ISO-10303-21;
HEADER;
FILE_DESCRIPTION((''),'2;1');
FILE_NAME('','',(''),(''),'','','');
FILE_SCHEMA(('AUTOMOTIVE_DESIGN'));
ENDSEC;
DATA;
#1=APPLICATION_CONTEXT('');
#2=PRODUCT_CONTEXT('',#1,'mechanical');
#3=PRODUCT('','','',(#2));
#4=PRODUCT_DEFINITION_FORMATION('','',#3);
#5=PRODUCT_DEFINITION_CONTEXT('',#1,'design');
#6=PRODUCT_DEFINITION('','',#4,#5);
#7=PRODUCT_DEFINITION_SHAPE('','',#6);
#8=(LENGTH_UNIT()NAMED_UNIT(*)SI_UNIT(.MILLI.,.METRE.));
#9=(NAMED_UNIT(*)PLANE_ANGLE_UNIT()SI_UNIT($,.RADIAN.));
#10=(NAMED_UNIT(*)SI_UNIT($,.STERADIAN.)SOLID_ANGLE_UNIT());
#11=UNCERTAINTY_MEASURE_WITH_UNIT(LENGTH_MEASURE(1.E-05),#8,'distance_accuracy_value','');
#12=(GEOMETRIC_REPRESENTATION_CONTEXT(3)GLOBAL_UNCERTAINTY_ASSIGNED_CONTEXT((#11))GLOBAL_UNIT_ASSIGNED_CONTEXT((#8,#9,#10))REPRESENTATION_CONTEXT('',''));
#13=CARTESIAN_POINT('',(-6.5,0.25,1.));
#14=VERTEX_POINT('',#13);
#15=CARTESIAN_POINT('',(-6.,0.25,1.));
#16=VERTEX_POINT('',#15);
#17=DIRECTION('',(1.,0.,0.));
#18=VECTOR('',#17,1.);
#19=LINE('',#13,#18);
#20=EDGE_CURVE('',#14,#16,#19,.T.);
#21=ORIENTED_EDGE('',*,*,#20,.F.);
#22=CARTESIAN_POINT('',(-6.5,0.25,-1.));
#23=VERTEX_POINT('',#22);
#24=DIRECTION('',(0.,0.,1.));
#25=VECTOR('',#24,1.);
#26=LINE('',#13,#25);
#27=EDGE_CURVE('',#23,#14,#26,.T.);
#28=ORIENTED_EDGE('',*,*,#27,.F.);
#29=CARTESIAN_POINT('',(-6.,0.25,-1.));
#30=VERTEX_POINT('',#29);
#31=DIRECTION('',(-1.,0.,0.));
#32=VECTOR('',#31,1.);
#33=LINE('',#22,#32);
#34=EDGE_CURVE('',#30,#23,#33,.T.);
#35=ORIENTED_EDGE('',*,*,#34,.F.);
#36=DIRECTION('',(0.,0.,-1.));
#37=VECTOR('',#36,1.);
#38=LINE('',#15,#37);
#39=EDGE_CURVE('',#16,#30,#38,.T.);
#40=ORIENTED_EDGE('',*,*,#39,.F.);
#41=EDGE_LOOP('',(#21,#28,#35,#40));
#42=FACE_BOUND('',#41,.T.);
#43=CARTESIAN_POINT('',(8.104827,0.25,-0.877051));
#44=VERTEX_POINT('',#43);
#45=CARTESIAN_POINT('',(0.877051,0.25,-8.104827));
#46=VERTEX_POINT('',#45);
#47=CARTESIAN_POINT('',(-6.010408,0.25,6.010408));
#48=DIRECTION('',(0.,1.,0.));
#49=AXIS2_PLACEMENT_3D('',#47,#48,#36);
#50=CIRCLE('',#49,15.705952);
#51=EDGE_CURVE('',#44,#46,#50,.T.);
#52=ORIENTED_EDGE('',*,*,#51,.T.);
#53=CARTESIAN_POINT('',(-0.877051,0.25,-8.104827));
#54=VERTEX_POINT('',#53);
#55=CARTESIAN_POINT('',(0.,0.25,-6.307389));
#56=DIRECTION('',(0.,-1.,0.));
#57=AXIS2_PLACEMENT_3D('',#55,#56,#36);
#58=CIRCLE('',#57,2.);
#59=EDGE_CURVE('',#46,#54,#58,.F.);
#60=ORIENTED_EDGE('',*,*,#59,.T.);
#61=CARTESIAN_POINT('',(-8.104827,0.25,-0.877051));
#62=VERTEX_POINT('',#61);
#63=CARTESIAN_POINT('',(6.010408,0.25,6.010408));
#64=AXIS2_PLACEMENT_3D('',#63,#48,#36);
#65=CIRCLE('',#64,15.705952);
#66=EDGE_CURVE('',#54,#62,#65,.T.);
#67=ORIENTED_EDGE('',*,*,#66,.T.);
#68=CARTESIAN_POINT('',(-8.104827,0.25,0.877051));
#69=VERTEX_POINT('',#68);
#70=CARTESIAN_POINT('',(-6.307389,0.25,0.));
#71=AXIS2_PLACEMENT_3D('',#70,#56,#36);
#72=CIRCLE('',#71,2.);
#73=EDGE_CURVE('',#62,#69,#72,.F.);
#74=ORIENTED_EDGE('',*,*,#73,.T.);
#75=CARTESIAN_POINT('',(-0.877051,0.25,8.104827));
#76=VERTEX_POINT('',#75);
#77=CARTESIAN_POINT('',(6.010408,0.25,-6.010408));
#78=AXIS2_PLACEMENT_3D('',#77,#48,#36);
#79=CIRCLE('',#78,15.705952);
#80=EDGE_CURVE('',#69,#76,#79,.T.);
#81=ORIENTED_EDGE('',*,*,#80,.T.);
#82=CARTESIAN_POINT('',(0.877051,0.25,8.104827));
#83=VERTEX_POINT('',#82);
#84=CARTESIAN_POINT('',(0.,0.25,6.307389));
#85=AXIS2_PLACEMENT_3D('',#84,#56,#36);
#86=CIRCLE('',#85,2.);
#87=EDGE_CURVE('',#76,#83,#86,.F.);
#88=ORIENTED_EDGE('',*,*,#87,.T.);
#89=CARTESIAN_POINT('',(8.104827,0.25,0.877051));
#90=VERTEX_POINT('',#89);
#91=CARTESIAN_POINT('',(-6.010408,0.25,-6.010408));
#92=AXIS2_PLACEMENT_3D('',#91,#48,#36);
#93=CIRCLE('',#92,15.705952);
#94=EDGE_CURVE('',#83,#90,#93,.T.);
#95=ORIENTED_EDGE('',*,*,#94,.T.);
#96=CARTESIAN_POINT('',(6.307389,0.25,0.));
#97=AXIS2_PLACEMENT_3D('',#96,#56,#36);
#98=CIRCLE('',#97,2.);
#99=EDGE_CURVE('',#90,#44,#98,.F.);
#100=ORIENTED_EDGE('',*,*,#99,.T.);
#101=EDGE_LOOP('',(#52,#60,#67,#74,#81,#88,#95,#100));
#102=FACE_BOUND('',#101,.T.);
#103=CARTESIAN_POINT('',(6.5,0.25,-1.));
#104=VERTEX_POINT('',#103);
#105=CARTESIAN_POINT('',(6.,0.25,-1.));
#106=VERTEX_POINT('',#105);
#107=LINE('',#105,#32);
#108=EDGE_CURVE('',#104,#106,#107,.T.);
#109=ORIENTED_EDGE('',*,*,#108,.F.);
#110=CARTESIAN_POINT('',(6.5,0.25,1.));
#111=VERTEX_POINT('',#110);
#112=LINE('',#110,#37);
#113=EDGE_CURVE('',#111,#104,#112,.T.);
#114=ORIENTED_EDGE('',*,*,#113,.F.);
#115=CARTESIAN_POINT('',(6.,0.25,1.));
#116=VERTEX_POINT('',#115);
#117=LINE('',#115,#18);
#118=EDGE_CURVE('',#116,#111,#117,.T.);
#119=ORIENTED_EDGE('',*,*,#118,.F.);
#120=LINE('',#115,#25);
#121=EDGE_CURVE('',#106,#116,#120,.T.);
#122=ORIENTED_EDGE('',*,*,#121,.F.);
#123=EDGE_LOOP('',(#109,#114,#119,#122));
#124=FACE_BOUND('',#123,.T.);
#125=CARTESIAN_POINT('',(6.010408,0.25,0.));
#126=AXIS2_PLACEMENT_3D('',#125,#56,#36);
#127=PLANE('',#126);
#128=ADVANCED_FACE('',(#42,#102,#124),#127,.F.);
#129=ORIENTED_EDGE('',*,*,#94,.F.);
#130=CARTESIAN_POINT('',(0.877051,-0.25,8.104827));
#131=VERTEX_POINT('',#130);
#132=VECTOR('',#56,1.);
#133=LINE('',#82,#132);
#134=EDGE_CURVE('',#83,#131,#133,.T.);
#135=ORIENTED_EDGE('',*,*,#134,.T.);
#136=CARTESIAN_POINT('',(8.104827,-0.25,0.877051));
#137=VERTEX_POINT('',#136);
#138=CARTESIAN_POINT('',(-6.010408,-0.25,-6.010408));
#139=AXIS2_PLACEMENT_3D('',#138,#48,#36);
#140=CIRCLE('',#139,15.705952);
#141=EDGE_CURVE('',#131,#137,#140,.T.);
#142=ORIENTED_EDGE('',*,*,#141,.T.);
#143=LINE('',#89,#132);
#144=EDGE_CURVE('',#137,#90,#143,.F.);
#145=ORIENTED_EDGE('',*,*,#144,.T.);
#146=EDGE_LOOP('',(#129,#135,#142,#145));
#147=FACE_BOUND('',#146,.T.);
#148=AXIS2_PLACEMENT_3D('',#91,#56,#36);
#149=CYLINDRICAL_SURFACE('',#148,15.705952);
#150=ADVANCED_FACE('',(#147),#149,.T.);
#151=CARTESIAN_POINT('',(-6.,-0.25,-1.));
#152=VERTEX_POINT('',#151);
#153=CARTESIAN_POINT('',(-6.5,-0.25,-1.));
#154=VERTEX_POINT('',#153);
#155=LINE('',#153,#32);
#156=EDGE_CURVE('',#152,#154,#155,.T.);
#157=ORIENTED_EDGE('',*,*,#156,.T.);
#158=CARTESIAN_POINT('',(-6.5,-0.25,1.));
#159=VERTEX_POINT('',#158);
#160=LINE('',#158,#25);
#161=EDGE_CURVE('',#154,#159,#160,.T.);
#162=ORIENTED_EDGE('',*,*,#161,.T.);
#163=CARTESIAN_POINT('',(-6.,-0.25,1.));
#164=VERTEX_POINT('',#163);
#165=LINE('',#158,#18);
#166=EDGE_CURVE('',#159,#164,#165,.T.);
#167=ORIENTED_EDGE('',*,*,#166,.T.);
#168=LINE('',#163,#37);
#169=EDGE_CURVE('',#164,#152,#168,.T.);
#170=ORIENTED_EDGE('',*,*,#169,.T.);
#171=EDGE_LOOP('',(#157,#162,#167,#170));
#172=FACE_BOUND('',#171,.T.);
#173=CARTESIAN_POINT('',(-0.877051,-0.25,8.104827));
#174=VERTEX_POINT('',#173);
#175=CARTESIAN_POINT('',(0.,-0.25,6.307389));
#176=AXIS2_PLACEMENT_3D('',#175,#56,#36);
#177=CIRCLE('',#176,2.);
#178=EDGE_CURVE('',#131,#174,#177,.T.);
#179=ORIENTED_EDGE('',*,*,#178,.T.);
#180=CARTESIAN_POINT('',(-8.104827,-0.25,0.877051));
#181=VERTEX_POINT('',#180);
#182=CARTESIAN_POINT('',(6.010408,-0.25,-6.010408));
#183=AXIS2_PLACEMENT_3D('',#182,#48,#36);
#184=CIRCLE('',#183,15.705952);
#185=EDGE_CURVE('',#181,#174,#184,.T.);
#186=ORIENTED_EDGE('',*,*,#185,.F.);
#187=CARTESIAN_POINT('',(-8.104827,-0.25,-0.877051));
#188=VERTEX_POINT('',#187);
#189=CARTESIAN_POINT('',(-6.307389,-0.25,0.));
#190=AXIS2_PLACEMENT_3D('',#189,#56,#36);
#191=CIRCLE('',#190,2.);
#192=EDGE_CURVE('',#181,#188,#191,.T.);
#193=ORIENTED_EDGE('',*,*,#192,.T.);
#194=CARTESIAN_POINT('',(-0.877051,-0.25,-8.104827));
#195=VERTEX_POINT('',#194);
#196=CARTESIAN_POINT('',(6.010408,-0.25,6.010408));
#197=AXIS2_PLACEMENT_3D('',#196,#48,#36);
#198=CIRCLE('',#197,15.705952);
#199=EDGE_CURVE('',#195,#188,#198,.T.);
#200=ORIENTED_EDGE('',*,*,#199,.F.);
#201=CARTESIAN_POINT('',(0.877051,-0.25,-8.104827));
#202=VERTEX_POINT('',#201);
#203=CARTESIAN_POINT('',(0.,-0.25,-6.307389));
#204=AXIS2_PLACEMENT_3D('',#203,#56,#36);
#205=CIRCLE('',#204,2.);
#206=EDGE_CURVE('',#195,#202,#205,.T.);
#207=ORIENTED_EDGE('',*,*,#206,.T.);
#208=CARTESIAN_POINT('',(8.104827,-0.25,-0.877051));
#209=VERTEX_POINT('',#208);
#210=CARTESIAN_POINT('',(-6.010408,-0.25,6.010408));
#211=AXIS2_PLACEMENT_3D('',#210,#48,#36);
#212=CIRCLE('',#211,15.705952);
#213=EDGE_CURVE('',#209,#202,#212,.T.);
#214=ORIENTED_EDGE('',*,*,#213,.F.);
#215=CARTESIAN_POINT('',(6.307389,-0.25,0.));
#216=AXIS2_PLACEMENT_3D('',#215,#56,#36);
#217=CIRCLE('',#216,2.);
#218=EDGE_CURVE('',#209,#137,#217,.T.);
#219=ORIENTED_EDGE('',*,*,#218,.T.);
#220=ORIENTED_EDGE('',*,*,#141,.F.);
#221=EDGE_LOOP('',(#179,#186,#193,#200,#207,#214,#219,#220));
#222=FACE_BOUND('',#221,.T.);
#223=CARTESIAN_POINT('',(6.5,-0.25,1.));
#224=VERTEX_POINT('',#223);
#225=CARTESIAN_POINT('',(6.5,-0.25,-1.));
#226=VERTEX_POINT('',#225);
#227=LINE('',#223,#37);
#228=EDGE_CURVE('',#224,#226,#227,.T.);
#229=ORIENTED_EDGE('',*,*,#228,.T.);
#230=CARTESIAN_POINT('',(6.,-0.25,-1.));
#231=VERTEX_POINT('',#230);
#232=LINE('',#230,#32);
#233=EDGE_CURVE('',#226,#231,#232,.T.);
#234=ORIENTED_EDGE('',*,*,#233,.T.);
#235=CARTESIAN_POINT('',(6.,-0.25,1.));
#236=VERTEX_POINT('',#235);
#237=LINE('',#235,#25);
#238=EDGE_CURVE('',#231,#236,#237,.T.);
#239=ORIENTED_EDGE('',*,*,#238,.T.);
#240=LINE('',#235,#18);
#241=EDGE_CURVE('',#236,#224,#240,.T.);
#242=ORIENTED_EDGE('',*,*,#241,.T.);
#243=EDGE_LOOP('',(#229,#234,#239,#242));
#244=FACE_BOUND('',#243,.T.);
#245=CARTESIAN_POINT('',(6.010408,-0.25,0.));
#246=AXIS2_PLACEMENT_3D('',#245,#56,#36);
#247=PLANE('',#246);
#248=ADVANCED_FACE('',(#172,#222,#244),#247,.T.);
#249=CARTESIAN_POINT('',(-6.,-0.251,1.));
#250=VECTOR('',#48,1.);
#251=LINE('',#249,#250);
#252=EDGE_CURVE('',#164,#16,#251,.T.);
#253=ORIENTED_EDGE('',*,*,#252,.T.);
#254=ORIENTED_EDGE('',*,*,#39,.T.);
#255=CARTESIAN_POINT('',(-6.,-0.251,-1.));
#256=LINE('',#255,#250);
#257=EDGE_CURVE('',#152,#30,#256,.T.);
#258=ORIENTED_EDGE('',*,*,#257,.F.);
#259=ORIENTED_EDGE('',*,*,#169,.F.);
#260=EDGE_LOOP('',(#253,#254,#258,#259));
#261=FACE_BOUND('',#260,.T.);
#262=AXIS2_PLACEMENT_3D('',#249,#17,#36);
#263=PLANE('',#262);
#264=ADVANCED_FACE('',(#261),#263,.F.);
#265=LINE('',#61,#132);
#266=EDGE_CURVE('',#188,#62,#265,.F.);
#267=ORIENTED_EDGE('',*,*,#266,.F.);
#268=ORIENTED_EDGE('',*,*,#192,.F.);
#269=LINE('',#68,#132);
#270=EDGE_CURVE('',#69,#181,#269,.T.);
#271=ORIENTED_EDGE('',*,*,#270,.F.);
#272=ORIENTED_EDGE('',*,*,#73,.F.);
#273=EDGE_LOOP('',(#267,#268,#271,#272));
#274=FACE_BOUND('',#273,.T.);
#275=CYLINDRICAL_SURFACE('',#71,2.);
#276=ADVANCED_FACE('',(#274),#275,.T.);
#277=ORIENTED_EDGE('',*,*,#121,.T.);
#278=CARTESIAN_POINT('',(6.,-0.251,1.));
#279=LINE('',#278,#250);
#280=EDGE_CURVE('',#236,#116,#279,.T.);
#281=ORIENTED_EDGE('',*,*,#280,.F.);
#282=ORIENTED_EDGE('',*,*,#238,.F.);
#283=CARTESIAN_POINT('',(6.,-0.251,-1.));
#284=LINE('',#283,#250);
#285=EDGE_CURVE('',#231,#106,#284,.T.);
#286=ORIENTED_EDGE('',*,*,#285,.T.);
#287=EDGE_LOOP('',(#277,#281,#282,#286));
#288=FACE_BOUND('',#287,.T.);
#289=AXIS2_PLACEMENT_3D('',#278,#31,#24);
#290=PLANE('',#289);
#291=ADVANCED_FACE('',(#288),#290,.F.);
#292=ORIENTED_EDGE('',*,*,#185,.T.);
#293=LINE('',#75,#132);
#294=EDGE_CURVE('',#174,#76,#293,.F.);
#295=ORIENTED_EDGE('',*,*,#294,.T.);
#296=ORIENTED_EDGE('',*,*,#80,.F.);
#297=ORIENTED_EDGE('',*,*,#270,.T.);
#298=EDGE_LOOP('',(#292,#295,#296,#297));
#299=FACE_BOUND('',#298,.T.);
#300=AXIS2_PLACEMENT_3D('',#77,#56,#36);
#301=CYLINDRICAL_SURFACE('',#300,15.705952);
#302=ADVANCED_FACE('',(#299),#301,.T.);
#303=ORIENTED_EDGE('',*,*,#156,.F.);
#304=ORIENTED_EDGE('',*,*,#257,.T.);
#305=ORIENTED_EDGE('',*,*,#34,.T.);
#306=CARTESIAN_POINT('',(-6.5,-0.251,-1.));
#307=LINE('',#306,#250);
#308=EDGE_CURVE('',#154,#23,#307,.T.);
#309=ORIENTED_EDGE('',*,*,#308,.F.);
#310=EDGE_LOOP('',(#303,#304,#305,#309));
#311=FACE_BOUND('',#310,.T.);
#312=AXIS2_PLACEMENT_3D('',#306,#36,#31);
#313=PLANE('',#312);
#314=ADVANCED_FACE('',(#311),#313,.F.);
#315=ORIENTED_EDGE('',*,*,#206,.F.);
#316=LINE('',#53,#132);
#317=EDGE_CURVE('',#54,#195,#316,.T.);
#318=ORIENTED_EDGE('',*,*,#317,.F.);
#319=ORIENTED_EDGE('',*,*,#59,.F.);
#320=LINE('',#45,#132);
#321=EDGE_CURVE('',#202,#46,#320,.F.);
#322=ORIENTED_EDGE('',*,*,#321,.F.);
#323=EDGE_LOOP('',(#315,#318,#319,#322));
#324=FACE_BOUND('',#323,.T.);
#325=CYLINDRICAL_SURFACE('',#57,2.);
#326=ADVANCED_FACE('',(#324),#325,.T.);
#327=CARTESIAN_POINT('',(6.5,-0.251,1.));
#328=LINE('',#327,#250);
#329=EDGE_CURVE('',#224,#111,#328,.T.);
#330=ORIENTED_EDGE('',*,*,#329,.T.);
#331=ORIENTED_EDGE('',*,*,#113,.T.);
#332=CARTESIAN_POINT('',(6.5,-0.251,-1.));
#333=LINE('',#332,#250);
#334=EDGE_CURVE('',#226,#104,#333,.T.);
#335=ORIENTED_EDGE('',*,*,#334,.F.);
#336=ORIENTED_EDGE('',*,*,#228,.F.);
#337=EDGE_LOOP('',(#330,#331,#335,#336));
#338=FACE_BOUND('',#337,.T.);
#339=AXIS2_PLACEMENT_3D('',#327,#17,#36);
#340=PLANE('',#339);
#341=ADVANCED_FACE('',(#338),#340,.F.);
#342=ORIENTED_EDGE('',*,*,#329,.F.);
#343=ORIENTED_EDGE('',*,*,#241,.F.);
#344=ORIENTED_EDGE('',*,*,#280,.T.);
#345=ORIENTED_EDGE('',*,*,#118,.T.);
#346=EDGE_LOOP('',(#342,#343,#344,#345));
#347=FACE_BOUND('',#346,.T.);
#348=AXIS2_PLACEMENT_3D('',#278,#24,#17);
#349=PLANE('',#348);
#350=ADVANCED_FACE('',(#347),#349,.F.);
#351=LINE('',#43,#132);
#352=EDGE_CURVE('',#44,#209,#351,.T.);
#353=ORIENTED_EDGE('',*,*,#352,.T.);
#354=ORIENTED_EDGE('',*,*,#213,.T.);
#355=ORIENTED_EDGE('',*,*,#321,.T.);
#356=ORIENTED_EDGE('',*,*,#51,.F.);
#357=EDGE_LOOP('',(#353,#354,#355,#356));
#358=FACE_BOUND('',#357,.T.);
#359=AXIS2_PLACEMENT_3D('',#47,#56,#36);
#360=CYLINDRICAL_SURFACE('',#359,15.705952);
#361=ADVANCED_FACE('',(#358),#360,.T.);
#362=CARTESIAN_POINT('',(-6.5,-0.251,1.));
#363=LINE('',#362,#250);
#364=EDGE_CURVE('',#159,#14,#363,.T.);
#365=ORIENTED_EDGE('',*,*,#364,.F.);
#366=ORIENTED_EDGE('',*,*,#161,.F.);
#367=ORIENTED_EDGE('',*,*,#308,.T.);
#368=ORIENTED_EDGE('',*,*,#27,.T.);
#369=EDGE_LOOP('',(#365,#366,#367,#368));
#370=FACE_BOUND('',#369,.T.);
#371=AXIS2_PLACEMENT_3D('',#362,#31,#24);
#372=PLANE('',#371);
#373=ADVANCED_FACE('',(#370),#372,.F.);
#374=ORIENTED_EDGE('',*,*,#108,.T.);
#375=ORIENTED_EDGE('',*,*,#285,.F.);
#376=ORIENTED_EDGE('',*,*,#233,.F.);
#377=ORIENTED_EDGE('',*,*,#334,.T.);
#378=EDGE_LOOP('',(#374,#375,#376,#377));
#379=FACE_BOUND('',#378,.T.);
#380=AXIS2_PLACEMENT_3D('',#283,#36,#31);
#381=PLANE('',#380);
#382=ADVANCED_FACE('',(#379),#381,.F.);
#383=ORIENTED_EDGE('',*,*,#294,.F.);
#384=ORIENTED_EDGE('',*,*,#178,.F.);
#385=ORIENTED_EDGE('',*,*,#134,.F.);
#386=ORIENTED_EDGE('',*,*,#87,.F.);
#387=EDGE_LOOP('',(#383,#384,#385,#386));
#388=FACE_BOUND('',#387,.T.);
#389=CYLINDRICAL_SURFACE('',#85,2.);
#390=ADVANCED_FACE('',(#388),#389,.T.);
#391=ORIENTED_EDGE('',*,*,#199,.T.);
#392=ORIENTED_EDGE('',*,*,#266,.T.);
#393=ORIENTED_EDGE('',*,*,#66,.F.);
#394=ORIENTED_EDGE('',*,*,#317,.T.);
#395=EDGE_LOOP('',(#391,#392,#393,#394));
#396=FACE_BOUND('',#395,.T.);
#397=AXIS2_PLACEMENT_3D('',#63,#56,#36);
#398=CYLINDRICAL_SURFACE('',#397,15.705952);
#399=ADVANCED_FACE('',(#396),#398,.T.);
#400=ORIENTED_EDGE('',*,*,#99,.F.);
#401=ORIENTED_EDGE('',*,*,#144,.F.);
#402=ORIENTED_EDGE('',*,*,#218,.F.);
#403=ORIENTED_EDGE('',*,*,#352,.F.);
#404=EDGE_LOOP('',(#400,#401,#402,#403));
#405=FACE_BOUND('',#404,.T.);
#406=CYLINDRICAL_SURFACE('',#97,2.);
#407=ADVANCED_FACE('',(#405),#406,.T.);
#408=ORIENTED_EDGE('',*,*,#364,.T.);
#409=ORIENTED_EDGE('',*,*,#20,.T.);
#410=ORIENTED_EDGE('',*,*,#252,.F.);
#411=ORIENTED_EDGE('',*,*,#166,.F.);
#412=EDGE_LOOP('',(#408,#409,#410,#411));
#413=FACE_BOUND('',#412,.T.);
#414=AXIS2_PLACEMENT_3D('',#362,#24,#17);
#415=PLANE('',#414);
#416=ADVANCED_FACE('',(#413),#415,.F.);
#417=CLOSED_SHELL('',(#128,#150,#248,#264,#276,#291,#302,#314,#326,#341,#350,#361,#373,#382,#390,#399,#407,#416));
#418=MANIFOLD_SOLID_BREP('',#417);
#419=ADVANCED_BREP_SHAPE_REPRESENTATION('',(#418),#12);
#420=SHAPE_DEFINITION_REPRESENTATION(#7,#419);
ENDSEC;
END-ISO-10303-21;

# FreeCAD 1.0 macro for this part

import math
import FreeCAD as App
import Part
import Sketcher
from FreeCAD import Vector


def edges_at(feature, points):
    """Names of the edges that pass closest to the given points."""
    edges = feature.Shape.Edges
    near = lambda p: min(range(len(edges)), key=lambda i: edges[i].distToShape(Part.Vertex(*p))[0])
    return sorted({f"Edge{near(p) + 1}" for p in points})

doc = App.newDocument("Part")
body = doc.addObject("PartDesign::Body", "Body")

# Sketch on XZ plane
sketch1 = body.newObject("Sketcher::SketchObject", "Sketch")
sketch1.AttachmentSupport = (doc.getObject("XZ_Plane"), [""])
sketch1.MapMode = "FlatFace"
sketch1.addGeometry(Part.ArcOfCircle(Part.Circle(Vector(6, 6, 0), Vector(0, 0, 1), 16), math.radians(-157), math.radians(-113)), False)
sketch1.addGeometry(Part.ArcOfCircle(Part.Circle(Vector(6, -6, 0), Vector(0, 0, 1), 16), math.radians(113), math.radians(157)), False)
sketch1.addGeometry(Part.ArcOfCircle(Part.Circle(Vector(-6, -6, 0), Vector(0, 0, 1), 16), math.radians(23), math.radians(67)), False)
sketch1.addGeometry(Part.ArcOfCircle(Part.Circle(Vector(-6, 6, 0), Vector(0, 0, 1), 16), math.radians(-67), math.radians(-23)), False)
sketch1.addConstraint(Sketcher.Constraint("Coincident", 0, 1, 1, 2))
sketch1.addConstraint(Sketcher.Constraint("Coincident", 1, 1, 2, 2))
sketch1.addConstraint(Sketcher.Constraint("Coincident", 2, 1, 3, 2))
sketch1.addConstraint(Sketcher.Constraint("Coincident", 3, 1, 0, 2))
sketch1.addConstraint(Sketcher.Constraint("Equal", 0, 1))
sketch1.addConstraint(Sketcher.Constraint("Equal", 1, 2))
sketch1.addConstraint(Sketcher.Constraint("Equal", 2, 3))
sketch1.addConstraint(Sketcher.Constraint("Symmetric", 0, 3, 2, 3, -1, 1))
sketch1.addConstraint(Sketcher.Constraint("Symmetric", 1, 3, 3, 3, -1, 1))
sketch1.addConstraint(Sketcher.Constraint("Symmetric", 1, 3, 2, 3, -2))
sketch1.addConstraint(Sketcher.Constraint("DistanceX", 0, 1, -1, 1, 8.5))
sketch1.addConstraint(Sketcher.Constraint("DistanceY", -1, 1, 1, 1, 8.5))
sketch1.addConstraint(Sketcher.Constraint("Radius", 0, 15.705952))
pad1 = body.newObject("PartDesign::Pad", "Pad")
pad1.Profile = sketch1
pad1.Length = 0.5
pad1.Midplane = True
doc.recompute()

fillet = body.newObject("PartDesign::Fillet", "Fillet")
fillet.Base = (pad1, edges_at(pad1, [
    (-8.5, 0, 0),
    (0, 0, -8.5),
    (8.5, 0, 0),
    (0, 0, 8.5),
]))
fillet.Radius = 2

# Sketch on XZ plane
sketch2 = body.newObject("Sketcher::SketchObject", "Sketch001")
sketch2.AttachmentSupport = (doc.getObject("XZ_Plane"), [""])
sketch2.MapMode = "FlatFace"
sketch2.AttachmentOffset = App.Placement(Vector(0, 0, -0.25), App.Rotation())
sketch2.addGeometry(Part.LineSegment(Vector(-6.5, -1, 0), Vector(-6.5, 1, 0)), False)
sketch2.addGeometry(Part.LineSegment(Vector(-6.5, 1, 0), Vector(-6, 1, 0)), False)
sketch2.addGeometry(Part.LineSegment(Vector(-6, 1, 0), Vector(-6, -1, 0)), False)
sketch2.addGeometry(Part.LineSegment(Vector(-6, -1, 0), Vector(-6.5, -1, 0)), False)
sketch2.addConstraint(Sketcher.Constraint("Coincident", 0, 2, 1, 1))
sketch2.addConstraint(Sketcher.Constraint("Coincident", 1, 2, 2, 1))
sketch2.addConstraint(Sketcher.Constraint("Coincident", 2, 2, 3, 1))
sketch2.addConstraint(Sketcher.Constraint("Coincident", 3, 2, 0, 1))
sketch2.addConstraint(Sketcher.Constraint("Vertical", 0))
sketch2.addConstraint(Sketcher.Constraint("Horizontal", 1))
sketch2.addConstraint(Sketcher.Constraint("Vertical", 2))
sketch2.addConstraint(Sketcher.Constraint("Horizontal", 3))
sketch2.addConstraint(Sketcher.Constraint("DistanceY", 0, 1, 0, 2, 2.0))
sketch2.addConstraint(Sketcher.Constraint("DistanceX", 1, 1, 1, 2, 0.5))
sketch2.addConstraint(Sketcher.Constraint("DistanceY", -1, 1, 0, 2, 1.0))
sketch2.addConstraint(Sketcher.Constraint("DistanceX", 1, 2, -1, 1, 6.0))
pocket1 = body.newObject("PartDesign::Pocket", "Pocket")
pocket1.Profile = sketch2
pocket1.Type = "UpToFirst"
pocket1.Reversed = True

# Sketch on XZ plane
sketch3 = body.newObject("Sketcher::SketchObject", "Sketch002")
sketch3.AttachmentSupport = (doc.getObject("XZ_Plane"), [""])
sketch3.MapMode = "FlatFace"
sketch3.AttachmentOffset = App.Placement(Vector(0, 0, -0.25), App.Rotation())
sketch3.addGeometry(Part.LineSegment(Vector(6, -1, 0), Vector(6, 1, 0)), False)
sketch3.addGeometry(Part.LineSegment(Vector(6, 1, 0), Vector(6.5, 1, 0)), False)
sketch3.addGeometry(Part.LineSegment(Vector(6.5, 1, 0), Vector(6.5, -1, 0)), False)
sketch3.addGeometry(Part.LineSegment(Vector(6.5, -1, 0), Vector(6, -1, 0)), False)
sketch3.addConstraint(Sketcher.Constraint("Coincident", 0, 2, 1, 1))
sketch3.addConstraint(Sketcher.Constraint("Coincident", 1, 2, 2, 1))
sketch3.addConstraint(Sketcher.Constraint("Coincident", 2, 2, 3, 1))
sketch3.addConstraint(Sketcher.Constraint("Coincident", 3, 2, 0, 1))
sketch3.addConstraint(Sketcher.Constraint("Vertical", 0))
sketch3.addConstraint(Sketcher.Constraint("Horizontal", 1))
sketch3.addConstraint(Sketcher.Constraint("Vertical", 2))
sketch3.addConstraint(Sketcher.Constraint("Horizontal", 3))
sketch3.addConstraint(Sketcher.Constraint("DistanceY", 0, 1, 0, 2, 2.0))
sketch3.addConstraint(Sketcher.Constraint("DistanceX", 1, 1, 1, 2, 0.5))
sketch3.addConstraint(Sketcher.Constraint("DistanceX", -1, 1, 0, 2, 6.0))
sketch3.addConstraint(Sketcher.Constraint("DistanceY", -1, 1, 0, 2, 1.0))
pocket2 = body.newObject("PartDesign::Pocket", "Pocket001")
pocket2.Profile = sketch3
pocket2.Type = "UpToFirst"
pocket2.Reversed = True

doc.recompute()
